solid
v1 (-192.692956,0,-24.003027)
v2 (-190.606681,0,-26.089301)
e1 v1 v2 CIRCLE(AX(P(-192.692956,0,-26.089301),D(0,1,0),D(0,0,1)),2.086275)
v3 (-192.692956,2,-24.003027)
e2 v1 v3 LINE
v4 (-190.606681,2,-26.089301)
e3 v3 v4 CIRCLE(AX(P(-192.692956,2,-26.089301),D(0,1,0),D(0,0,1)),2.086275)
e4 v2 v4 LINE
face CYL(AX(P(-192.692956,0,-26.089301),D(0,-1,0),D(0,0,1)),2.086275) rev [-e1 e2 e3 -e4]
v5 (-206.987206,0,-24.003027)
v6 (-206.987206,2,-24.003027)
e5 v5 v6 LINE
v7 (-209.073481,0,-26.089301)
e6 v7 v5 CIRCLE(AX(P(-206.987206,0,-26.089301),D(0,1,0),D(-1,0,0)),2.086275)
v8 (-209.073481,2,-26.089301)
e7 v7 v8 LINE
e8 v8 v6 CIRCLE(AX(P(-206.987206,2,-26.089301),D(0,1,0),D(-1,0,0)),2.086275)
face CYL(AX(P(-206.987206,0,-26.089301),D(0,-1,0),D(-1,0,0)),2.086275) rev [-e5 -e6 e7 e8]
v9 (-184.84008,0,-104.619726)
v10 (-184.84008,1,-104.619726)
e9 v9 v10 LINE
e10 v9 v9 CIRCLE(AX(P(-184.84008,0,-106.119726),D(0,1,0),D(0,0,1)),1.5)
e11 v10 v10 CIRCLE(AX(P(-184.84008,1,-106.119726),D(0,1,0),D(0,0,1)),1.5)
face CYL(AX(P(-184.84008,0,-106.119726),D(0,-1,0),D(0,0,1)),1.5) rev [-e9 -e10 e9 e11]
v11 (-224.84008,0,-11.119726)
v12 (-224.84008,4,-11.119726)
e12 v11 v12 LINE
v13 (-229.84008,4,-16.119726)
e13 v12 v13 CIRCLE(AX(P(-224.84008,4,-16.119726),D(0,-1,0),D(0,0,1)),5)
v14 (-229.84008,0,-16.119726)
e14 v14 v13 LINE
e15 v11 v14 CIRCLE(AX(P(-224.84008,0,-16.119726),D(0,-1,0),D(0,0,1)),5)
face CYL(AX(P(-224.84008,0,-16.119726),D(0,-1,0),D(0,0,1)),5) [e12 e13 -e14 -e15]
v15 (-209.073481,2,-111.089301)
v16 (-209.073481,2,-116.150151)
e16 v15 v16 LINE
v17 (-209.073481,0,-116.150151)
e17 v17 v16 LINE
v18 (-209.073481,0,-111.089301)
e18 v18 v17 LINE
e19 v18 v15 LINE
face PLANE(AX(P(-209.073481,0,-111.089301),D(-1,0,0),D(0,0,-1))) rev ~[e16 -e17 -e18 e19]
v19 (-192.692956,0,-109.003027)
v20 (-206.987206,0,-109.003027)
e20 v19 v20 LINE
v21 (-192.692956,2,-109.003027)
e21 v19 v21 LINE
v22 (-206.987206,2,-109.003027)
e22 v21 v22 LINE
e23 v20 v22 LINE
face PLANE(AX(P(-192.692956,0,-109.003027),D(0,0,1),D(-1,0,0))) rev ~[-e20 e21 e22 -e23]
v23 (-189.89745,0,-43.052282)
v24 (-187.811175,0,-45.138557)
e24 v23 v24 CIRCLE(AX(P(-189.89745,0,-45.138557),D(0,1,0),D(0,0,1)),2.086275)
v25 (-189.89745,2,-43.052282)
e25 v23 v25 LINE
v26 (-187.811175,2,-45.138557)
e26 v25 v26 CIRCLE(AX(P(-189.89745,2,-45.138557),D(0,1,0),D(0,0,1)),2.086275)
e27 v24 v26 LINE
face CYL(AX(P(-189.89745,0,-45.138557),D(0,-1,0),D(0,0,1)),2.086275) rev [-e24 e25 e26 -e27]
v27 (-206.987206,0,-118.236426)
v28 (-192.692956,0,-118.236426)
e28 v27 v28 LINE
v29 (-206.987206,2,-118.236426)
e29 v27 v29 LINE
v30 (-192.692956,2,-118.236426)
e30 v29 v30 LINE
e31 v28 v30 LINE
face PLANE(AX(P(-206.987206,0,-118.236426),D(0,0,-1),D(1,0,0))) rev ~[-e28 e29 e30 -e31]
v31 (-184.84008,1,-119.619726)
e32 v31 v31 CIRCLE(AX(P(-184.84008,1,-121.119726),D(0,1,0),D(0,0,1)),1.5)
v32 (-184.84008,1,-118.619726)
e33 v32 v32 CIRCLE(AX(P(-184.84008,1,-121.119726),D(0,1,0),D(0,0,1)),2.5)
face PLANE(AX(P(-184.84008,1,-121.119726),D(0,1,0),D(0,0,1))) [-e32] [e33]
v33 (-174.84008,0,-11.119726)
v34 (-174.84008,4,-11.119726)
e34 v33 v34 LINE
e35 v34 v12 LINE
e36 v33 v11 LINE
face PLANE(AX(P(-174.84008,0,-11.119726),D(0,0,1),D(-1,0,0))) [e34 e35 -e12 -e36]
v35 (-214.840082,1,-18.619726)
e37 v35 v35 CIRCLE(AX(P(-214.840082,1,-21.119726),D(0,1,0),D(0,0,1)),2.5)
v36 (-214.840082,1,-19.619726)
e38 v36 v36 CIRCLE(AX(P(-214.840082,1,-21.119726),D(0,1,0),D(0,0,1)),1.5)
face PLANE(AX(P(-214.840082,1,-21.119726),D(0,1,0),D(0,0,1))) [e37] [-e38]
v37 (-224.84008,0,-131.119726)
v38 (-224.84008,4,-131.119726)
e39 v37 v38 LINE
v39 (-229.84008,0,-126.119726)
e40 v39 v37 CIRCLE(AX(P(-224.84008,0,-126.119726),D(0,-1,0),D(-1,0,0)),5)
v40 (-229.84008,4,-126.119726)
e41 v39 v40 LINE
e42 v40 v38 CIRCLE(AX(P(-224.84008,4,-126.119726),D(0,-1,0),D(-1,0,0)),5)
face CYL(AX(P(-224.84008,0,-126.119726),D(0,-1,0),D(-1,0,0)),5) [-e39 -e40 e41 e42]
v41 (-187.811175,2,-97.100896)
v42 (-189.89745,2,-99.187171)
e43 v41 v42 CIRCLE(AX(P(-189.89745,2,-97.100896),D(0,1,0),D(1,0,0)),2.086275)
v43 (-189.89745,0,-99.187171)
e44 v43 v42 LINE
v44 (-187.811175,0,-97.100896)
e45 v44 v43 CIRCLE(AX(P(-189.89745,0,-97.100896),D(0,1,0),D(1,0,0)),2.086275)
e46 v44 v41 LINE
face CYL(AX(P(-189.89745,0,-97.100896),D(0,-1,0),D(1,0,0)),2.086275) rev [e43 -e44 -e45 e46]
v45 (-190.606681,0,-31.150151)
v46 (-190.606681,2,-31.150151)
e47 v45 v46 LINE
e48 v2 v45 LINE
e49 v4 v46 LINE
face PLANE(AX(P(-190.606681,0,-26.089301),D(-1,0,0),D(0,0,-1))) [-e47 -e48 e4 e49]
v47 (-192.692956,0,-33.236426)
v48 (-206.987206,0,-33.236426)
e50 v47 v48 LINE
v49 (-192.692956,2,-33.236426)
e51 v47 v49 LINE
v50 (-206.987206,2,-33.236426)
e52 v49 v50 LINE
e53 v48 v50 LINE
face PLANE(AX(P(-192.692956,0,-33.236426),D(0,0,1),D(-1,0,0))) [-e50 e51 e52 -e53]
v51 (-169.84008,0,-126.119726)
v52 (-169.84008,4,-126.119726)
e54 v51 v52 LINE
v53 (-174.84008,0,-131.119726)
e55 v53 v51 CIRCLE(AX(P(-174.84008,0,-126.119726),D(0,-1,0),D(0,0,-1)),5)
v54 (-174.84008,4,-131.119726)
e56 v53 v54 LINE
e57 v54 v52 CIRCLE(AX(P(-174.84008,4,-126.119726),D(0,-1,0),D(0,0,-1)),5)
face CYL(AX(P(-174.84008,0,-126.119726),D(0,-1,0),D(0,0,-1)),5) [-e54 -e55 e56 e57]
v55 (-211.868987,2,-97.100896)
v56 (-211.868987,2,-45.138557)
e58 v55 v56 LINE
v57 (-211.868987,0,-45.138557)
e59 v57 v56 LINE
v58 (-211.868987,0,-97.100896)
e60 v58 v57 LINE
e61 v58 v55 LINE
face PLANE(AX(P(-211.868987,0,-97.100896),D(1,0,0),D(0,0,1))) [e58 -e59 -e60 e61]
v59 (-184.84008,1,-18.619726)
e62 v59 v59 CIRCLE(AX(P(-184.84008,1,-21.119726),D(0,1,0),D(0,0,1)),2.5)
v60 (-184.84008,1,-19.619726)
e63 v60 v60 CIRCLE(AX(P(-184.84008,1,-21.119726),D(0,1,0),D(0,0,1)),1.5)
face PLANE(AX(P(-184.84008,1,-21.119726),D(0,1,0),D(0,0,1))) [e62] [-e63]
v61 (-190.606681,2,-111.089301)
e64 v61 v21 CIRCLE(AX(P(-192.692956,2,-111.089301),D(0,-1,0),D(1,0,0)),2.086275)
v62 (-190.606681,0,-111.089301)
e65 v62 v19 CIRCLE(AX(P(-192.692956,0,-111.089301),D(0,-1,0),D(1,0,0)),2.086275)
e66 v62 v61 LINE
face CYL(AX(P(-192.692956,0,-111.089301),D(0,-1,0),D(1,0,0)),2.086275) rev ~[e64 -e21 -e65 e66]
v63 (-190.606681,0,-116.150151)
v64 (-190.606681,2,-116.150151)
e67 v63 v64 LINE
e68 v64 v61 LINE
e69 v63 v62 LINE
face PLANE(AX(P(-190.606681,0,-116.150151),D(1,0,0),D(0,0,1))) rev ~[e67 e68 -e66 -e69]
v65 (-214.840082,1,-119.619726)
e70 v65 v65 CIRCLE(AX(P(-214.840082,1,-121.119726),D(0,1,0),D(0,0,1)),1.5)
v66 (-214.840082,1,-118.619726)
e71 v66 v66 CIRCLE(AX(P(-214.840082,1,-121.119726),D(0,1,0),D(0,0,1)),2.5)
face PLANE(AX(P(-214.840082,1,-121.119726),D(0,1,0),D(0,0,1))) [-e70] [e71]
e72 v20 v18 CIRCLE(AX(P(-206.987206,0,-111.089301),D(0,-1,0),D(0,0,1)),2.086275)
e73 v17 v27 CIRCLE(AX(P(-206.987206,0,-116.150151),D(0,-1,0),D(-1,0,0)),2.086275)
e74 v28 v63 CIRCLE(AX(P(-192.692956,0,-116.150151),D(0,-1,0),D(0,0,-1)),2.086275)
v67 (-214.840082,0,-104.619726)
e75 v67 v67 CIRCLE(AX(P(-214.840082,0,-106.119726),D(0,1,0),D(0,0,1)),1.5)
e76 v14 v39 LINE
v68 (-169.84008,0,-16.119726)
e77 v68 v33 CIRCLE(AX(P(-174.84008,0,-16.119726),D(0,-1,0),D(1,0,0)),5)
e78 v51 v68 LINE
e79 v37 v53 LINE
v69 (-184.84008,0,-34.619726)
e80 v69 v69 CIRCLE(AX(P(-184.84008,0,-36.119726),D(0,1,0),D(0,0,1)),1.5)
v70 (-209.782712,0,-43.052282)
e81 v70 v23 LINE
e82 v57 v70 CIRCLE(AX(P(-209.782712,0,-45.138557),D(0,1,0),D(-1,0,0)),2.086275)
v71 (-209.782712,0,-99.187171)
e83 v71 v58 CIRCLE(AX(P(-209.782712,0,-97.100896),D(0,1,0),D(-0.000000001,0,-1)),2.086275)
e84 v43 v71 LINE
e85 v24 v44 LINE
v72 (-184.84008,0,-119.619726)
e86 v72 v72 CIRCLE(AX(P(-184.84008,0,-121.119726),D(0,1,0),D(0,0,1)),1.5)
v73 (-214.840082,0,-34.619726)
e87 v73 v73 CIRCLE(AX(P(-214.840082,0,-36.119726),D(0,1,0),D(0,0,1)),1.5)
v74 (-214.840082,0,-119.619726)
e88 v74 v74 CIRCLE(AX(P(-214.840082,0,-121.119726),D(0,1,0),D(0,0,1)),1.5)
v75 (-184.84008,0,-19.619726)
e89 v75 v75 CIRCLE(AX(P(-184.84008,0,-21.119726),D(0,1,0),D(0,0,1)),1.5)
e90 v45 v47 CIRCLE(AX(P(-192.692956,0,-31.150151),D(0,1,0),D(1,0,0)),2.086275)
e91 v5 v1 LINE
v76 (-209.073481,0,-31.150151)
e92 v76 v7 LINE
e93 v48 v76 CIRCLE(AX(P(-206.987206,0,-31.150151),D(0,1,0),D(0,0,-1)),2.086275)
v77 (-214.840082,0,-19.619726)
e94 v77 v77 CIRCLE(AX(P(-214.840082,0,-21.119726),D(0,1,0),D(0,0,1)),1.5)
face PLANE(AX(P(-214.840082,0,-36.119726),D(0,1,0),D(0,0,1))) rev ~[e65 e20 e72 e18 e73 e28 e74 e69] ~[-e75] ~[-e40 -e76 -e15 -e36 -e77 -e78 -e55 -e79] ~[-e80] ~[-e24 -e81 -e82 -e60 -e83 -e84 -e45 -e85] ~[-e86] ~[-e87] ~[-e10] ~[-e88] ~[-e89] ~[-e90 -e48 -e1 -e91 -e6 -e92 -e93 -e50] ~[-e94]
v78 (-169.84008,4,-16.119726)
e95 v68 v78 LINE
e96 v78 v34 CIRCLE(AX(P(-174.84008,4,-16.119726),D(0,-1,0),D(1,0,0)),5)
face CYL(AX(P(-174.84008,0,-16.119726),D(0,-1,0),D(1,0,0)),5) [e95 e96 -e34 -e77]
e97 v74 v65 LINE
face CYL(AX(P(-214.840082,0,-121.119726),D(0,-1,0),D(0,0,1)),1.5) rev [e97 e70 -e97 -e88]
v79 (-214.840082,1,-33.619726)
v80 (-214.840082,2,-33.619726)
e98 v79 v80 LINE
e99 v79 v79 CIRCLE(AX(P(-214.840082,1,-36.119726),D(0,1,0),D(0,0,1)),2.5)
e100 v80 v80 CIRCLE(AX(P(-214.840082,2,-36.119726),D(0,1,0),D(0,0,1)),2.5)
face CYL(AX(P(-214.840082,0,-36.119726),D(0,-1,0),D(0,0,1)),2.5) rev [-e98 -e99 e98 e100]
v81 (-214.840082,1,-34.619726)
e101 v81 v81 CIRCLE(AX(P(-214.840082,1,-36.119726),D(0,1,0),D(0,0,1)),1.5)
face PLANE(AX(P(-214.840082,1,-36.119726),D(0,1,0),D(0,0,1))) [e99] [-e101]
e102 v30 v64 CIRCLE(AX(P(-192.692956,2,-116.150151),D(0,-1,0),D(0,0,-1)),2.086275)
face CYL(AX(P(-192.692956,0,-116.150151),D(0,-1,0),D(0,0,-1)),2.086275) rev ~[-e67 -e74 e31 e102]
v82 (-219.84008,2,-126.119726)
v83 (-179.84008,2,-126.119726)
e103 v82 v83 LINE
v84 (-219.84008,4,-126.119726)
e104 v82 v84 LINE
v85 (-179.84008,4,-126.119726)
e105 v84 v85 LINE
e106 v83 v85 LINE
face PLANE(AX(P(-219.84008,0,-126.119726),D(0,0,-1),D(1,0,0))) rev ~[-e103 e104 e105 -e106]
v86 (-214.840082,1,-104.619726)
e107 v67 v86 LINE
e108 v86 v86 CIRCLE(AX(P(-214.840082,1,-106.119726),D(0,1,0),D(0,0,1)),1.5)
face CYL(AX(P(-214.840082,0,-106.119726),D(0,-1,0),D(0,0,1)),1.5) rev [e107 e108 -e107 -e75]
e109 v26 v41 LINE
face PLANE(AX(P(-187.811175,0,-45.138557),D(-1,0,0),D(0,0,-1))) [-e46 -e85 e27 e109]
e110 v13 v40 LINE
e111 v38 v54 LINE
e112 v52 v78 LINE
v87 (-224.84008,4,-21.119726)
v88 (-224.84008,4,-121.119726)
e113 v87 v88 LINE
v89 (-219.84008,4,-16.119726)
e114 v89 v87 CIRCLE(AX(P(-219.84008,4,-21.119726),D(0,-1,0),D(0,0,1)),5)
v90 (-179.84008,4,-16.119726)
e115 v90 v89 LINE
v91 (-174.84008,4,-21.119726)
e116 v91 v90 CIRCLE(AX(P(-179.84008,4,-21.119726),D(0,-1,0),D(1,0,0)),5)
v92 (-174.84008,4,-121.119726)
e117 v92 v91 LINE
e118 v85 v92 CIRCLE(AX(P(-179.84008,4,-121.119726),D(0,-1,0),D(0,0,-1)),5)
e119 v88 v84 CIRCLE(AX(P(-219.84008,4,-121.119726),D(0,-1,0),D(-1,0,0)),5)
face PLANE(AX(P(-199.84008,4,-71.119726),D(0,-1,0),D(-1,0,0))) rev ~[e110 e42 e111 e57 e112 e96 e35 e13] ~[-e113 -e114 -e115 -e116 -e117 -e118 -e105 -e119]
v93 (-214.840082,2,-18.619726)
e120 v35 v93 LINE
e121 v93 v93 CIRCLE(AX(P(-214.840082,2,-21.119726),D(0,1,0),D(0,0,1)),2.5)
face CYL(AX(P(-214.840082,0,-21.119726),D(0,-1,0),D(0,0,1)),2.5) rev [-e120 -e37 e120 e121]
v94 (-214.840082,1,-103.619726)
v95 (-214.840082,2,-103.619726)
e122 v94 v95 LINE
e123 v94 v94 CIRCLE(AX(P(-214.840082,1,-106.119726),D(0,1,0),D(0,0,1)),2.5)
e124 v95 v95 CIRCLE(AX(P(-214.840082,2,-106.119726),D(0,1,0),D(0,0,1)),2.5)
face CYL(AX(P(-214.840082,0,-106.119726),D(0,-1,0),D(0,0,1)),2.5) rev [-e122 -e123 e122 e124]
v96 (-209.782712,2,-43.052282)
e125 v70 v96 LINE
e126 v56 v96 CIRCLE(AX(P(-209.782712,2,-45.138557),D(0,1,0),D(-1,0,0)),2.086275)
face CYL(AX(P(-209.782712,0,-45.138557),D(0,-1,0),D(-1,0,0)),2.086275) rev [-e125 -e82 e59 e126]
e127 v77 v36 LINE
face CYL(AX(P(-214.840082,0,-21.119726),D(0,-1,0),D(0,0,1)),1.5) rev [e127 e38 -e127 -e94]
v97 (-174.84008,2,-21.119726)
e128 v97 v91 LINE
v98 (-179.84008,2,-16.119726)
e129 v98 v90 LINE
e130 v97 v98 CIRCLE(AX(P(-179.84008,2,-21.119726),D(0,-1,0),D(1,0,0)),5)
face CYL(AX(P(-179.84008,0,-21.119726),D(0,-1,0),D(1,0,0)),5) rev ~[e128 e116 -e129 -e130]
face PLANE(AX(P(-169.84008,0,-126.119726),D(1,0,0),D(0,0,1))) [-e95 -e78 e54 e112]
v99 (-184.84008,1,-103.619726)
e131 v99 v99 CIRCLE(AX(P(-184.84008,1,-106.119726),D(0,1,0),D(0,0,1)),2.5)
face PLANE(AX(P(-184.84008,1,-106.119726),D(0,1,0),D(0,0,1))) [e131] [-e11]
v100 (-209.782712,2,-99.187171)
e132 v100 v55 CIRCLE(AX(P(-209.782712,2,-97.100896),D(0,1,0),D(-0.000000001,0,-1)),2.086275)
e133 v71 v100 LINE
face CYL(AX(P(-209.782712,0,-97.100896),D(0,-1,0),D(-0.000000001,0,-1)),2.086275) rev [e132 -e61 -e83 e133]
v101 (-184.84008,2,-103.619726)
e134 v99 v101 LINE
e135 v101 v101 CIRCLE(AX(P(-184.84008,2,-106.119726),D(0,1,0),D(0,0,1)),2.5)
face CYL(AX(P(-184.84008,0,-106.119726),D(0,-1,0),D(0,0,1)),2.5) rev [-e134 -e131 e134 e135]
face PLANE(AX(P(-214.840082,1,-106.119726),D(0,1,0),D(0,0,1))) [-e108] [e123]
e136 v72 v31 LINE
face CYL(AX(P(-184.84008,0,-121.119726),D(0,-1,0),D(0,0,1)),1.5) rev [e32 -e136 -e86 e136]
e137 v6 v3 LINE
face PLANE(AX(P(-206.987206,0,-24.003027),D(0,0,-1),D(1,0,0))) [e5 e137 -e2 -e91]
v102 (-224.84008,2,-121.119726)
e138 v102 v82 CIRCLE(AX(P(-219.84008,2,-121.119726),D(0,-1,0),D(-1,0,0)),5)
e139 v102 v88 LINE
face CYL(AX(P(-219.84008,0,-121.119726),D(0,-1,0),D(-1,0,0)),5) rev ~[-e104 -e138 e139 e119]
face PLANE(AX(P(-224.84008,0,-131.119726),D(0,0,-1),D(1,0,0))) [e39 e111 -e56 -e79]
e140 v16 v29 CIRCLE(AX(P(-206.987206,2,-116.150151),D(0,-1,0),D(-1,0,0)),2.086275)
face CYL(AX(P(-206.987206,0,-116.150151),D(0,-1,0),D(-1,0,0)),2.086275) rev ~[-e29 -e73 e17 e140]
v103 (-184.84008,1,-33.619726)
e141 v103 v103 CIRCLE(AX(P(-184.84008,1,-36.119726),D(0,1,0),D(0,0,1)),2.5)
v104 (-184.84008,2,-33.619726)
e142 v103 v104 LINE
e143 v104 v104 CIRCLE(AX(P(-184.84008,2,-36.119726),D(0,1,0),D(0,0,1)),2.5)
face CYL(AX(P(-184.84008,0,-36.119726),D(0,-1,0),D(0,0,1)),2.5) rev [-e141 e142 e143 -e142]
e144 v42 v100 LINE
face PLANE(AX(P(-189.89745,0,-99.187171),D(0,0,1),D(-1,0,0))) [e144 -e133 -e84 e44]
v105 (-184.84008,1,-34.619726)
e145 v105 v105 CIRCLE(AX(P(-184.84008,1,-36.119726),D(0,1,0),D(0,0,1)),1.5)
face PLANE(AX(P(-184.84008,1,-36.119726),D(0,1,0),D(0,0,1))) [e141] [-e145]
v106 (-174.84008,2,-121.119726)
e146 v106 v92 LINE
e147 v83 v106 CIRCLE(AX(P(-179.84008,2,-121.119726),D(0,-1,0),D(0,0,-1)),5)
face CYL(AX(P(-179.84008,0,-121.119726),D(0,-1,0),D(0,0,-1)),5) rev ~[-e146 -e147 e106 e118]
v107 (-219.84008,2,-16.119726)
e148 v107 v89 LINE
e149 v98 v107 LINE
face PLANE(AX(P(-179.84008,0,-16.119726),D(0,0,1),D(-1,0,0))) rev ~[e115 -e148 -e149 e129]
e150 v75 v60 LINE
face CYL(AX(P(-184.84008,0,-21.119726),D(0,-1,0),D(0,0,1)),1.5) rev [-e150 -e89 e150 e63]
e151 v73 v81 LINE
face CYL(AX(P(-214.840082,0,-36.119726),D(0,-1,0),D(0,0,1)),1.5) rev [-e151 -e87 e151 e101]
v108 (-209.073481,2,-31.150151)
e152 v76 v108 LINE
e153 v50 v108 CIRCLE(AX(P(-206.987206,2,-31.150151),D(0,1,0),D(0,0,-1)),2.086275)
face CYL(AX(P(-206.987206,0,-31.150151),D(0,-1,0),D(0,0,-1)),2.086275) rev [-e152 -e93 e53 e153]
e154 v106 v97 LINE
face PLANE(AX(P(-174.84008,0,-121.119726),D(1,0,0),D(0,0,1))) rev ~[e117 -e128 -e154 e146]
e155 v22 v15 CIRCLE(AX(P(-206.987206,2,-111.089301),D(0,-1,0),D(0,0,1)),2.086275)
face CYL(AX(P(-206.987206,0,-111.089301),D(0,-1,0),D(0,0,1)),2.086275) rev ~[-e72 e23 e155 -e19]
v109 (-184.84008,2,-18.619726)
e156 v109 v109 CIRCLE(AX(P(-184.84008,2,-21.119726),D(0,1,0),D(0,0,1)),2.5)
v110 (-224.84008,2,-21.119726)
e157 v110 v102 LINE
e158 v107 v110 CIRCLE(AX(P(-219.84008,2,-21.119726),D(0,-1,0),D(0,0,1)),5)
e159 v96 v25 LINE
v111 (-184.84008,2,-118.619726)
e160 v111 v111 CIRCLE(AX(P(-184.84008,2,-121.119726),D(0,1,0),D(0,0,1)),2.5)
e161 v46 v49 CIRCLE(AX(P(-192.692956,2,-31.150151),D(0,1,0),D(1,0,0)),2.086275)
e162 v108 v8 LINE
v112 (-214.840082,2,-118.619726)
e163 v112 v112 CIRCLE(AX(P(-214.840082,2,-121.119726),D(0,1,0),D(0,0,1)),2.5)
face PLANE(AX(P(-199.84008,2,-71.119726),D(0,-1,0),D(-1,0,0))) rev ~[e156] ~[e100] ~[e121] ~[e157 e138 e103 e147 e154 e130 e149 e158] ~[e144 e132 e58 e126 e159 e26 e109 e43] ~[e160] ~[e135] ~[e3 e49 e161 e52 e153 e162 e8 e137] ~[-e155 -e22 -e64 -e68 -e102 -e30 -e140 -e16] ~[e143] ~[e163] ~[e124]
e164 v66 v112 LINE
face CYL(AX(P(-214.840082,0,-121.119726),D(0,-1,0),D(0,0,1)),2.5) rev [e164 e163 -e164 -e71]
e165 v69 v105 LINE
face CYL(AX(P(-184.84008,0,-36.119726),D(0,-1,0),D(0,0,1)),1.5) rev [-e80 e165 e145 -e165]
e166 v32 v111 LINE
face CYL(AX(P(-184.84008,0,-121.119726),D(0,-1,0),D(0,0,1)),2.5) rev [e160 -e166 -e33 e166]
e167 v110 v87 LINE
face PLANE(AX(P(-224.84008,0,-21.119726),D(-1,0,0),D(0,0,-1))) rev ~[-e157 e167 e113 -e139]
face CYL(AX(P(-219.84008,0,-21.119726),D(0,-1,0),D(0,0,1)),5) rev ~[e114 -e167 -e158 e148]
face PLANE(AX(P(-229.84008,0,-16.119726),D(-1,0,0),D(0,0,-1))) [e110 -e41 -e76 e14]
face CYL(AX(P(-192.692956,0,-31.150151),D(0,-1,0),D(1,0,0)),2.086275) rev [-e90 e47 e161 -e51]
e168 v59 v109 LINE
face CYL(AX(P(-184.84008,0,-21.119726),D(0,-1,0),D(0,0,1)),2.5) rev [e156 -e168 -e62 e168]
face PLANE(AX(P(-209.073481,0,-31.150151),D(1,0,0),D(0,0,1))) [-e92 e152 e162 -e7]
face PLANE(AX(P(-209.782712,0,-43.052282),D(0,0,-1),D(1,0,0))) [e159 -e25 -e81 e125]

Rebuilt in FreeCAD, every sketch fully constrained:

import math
import FreeCAD as App
import Part
import Sketcher

V = App.Vector
Q = App.Units.Quantity

doc = App.newDocument("Part")
params = doc.addObject("Spreadsheet::Sheet", "Params")
for row, (alias, value) in enumerate([
    ("sketch1_radius", "5 mm"),
    ("sketch1_width", "50 mm"),
    ("sketch1_height", "110 mm"),
    ("pad1_length", "4 mm"),
    ("sketch2_diameter", "5 mm"),
    ("sketch2_radius", "5 mm"),
    ("sketch2_width", "40 mm"),
    ("sketch2_height", "100 mm"),
    ("pad2_length", "2 mm"),
    ("sketch3_diameter", "5 mm"),
    ("sketch3_diameter2", "3 mm"),
    ("pad3_length", "1 mm"),
], start=1):
    params.set(f"A{row}", alias)
    params.set(f"B{row}", "=" + value)
    params.setAlias(f"B{row}", alias)

body = doc.addObject("PartDesign::Body", "Body")

# Sketch on XZ plane
sketch1 = doc.addObject("Sketcher::SketchObject", "Sketch")
body.addObject(sketch1)
sketch1.AttachmentSupport = (doc.XZ_Plane, [""])
sketch1.MapMode = "FlatFace"
sketch1.addGeometry([
    Part.ArcOfCircle(Part.Circle(V(-175, -16, 0), V(0, 0, 1), 5), math.radians(0), math.radians(90)),  # 0
    Part.LineSegment(V(-170, -16, 0), V(-170, -126, 0)),  # 1
    Part.ArcOfCircle(Part.Circle(V(-175, -126, 0), V(0, 0, 1), 5), math.radians(-90), math.radians(0)),  # 2
    Part.LineSegment(V(-175, -131, 0), V(-225, -131, 0)),  # 3
    Part.ArcOfCircle(Part.Circle(V(-225, -126, 0), V(0, 0, 1), 5), math.radians(180), math.radians(270)),  # 4
    Part.LineSegment(V(-230, -126, 0), V(-230, -16, 0)),  # 5
    Part.ArcOfCircle(Part.Circle(V(-225, -16, 0), V(0, 0, 1), 5), math.radians(90), math.radians(180)),  # 6
    Part.LineSegment(V(-225, -11, 0), V(-175, -11, 0)),  # 7
    Part.LineSegment(V(-225, -21, 0), V(-225, -121, 0)),  # 8
    Part.ArcOfCircle(Part.Circle(V(-220, -121, 0), V(0, 0, 1), 5), math.radians(180), math.radians(270)),  # 9
    Part.LineSegment(V(-220, -126, 0), V(-180, -126, 0)),  # 10
    Part.ArcOfCircle(Part.Circle(V(-180, -121, 0), V(0, 0, 1), 5), math.radians(-90), math.radians(0)),  # 11
    Part.LineSegment(V(-175, -121, 0), V(-175, -21, 0)),  # 12
    Part.ArcOfCircle(Part.Circle(V(-180, -21, 0), V(0, 0, 1), 5), math.radians(0), math.radians(90)),  # 13
    Part.LineSegment(V(-180, -16, 0), V(-220, -16, 0)),  # 14
    Part.ArcOfCircle(Part.Circle(V(-220, -21, 0), V(0, 0, 1), 5), math.radians(90), math.radians(180)),  # 15
], False)
sketch1.addConstraint([
    Sketcher.Constraint("Tangent", 0, 1, 1, 1),
    Sketcher.Constraint("Tangent", 1, 2, 2, 2),
    Sketcher.Constraint("Tangent", 2, 1, 3, 1),
    Sketcher.Constraint("Tangent", 3, 2, 4, 2),
    Sketcher.Constraint("Tangent", 4, 1, 5, 1),
    Sketcher.Constraint("Tangent", 5, 2, 6, 2),
    Sketcher.Constraint("Tangent", 6, 1, 7, 1),
    Sketcher.Constraint("Tangent", 7, 2, 0, 2),
    Sketcher.Constraint("Tangent", 8, 2, 9, 1),
    Sketcher.Constraint("Tangent", 9, 2, 10, 1),
    Sketcher.Constraint("Tangent", 10, 2, 11, 1),
    Sketcher.Constraint("Tangent", 11, 2, 12, 1),
    Sketcher.Constraint("Tangent", 12, 2, 13, 1),
    Sketcher.Constraint("Tangent", 13, 2, 14, 1),
    Sketcher.Constraint("Tangent", 14, 2, 15, 1),
    Sketcher.Constraint("Tangent", 15, 2, 8, 1),
    Sketcher.Constraint("Vertical", 1),
    Sketcher.Constraint("Horizontal", 3),
    Sketcher.Constraint("Vertical", 5),
    Sketcher.Constraint("Horizontal", 7),
    Sketcher.Constraint("Vertical", 8),
    Sketcher.Constraint("Horizontal", 10),
    Sketcher.Constraint("Vertical", 12),
    Sketcher.Constraint("Horizontal", 14),
    Sketcher.Constraint("Equal", 0, 2),
    Sketcher.Constraint("Equal", 2, 4),
    Sketcher.Constraint("Equal", 4, 6),
    Sketcher.Constraint("Equal", 6, 9),
    Sketcher.Constraint("Equal", 9, 11),
    Sketcher.Constraint("Equal", 11, 13),
    Sketcher.Constraint("Equal", 13, 15),
    Sketcher.Constraint("Horizontal", 4, 1, 9, 2),
    Sketcher.Constraint("Horizontal", 5, 2, 13, 2),
    Sketcher.Constraint("Vertical", 6, 1, 8, 2),
    Sketcher.Constraint("Vertical", 7, 2, 11, 2),
    Sketcher.Constraint("Radius", 0, Q("5 mm")),
    Sketcher.Constraint("DistanceX", 3, 2, 3, 1, Q("50 mm")),
    Sketcher.Constraint("DistanceY", 1, 2, 1, 1, Q("110 mm")),
    Sketcher.Constraint("DistanceX", 0, 3, -1, 1, Q("174.84008 mm")),
    Sketcher.Constraint("DistanceY", 0, 3, -1, 1, Q("16.119726 mm")),
])
sketch1.setExpression("Constraints[35]", "Params.sketch1_radius")
sketch1.setExpression("Constraints[36]", "Params.sketch1_width")
sketch1.setExpression("Constraints[37]", "Params.sketch1_height")
pad1 = doc.addObject("PartDesign::Pad", "Pad")
body.addObject(pad1)
pad1.Profile = sketch1
pad1.setExpression("Length", "Params.pad1_length")
pad1.Reversed = True

# Sketch on XZ plane
sketch2 = doc.addObject("Sketcher::SketchObject", "Sketch001")
body.addObject(sketch2)
sketch2.AttachmentSupport = (doc.XZ_Plane, [""])
sketch2.MapMode = "FlatFace"
sketch2.addGeometry([
    Part.ArcOfCircle(Part.Circle(V(-219.8, -121.1, 0), V(0, 0, 1), 5), math.radians(180), math.radians(270)),  # 0
    Part.LineSegment(V(-224.8, -121.1, 0), V(-224.8, -21.1, 0)),  # 1
    Part.ArcOfCircle(Part.Circle(V(-219.8, -21.1, 0), V(0, 0, 1), 5), math.radians(90), math.radians(180)),  # 2
    Part.LineSegment(V(-219.8, -16.1, 0), V(-179.8, -16.1, 0)),  # 3
    Part.ArcOfCircle(Part.Circle(V(-179.8, -21.1, 0), V(0, 0, 1), 5), math.radians(0), math.radians(90)),  # 4
    Part.LineSegment(V(-174.8, -21.1, 0), V(-174.8, -121.1, 0)),  # 5
    Part.ArcOfCircle(Part.Circle(V(-179.8, -121.1, 0), V(0, 0, 1), 5), math.radians(-90), math.radians(0)),  # 6
    Part.LineSegment(V(-179.8, -126.1, 0), V(-219.8, -126.1, 0)),  # 7
    Part.Circle(V(-184.8, -21.1, 0), V(0, 0, 1), 2.5),  # 8
    Part.Circle(V(-184.8, -36.1, 0), V(0, 0, 1), 2.5),  # 9
    Part.ArcOfCircle(Part.Circle(V(-207, -31.2, 0), V(0, 0, 1), 2.1), math.radians(180), math.radians(270)),  # 10
    Part.LineSegment(V(-207, -33.2, 0), V(-192.7, -33.2, 0)),  # 11
    Part.ArcOfCircle(Part.Circle(V(-192.7, -31.2, 0), V(0, 0, 1), 2.1), math.radians(-90), math.radians(0)),  # 12
    Part.LineSegment(V(-190.6, -31.2, 0), V(-190.6, -26.1, 0)),  # 13
    Part.ArcOfCircle(Part.Circle(V(-192.7, -26.1, 0), V(0, 0, 1), 2.1), math.radians(0), math.radians(90)),  # 14
    Part.LineSegment(V(-192.7, -24, 0), V(-207, -24, 0)),  # 15
    Part.ArcOfCircle(Part.Circle(V(-207, -26.1, 0), V(0, 0, 1), 2.1), math.radians(90), math.radians(180)),  # 16
    Part.LineSegment(V(-209.1, -26.1, 0), V(-209.1, -31.2, 0)),  # 17
    Part.Circle(V(-214.8, -21.1, 0), V(0, 0, 1), 2.5),  # 18
    Part.Circle(V(-214.8, -36.1, 0), V(0, 0, 1), 2.5),  # 19
    Part.Circle(V(-184.8, -106.1, 0), V(0, 0, 1), 2.5),  # 20
    Part.Circle(V(-184.8, -121.1, 0), V(0, 0, 1), 2.5),  # 21
    Part.LineSegment(V(-209.8, -99.2, 0), V(-189.9, -99.2, 0)),  # 22
    Part.ArcOfCircle(Part.Circle(V(-189.9, -97.1, 0), V(0, 0, 1), 2.1), math.radians(-90), math.radians(0)),  # 23
    Part.LineSegment(V(-187.8, -97.1, 0), V(-187.8, -45.1, 0)),  # 24
    Part.ArcOfCircle(Part.Circle(V(-189.9, -45.1, 0), V(0, 0, 1), 2.1), math.radians(0), math.radians(90)),  # 25
    Part.LineSegment(V(-189.9, -43.1, 0), V(-209.8, -43.1, 0)),  # 26
    Part.ArcOfCircle(Part.Circle(V(-209.8, -45.1, 0), V(0, 0, 1), 2.1), math.radians(90), math.radians(180)),  # 27
    Part.LineSegment(V(-211.9, -45.1, 0), V(-211.9, -97.1, 0)),  # 28
    Part.ArcOfCircle(Part.Circle(V(-209.8, -97.1, 0), V(0, 0, 1), 2.1), math.radians(-180), math.radians(-90)),  # 29
    Part.LineSegment(V(-209.1, -111.1, 0), V(-209.1, -116.2, 0)),  # 30
    Part.ArcOfCircle(Part.Circle(V(-207, -116.2, 0), V(0, 0, 1), 2.1), math.radians(180), math.radians(270)),  # 31
    Part.LineSegment(V(-207, -118.2, 0), V(-192.7, -118.2, 0)),  # 32
    Part.ArcOfCircle(Part.Circle(V(-192.7, -116.2, 0), V(0, 0, 1), 2.1), math.radians(-90), math.radians(0)),  # 33
    Part.LineSegment(V(-190.6, -116.2, 0), V(-190.6, -111.1, 0)),  # 34
    Part.ArcOfCircle(Part.Circle(V(-192.7, -111.1, 0), V(0, 0, 1), 2.1), math.radians(0), math.radians(90)),  # 35
    Part.LineSegment(V(-192.7, -109, 0), V(-207, -109, 0)),  # 36
    Part.ArcOfCircle(Part.Circle(V(-207, -111.1, 0), V(0, 0, 1), 2.1), math.radians(90), math.radians(180)),  # 37
    Part.Circle(V(-214.8, -106.1, 0), V(0, 0, 1), 2.5),  # 38
    Part.Circle(V(-214.8, -121.1, 0), V(0, 0, 1), 2.5),  # 39
], False)
sketch2.addConstraint([
    Sketcher.Constraint("Tangent", 0, 1, 1, 1),
    Sketcher.Constraint("Tangent", 1, 2, 2, 2),
    Sketcher.Constraint("Tangent", 2, 1, 3, 1),
    Sketcher.Constraint("Tangent", 3, 2, 4, 2),
    Sketcher.Constraint("Tangent", 4, 1, 5, 1),
    Sketcher.Constraint("Tangent", 5, 2, 6, 2),
    Sketcher.Constraint("Tangent", 6, 1, 7, 1),
    Sketcher.Constraint("Tangent", 7, 2, 0, 2),
    Sketcher.Constraint("Tangent", 10, 2, 11, 1),
    Sketcher.Constraint("Tangent", 11, 2, 12, 1),
    Sketcher.Constraint("Tangent", 12, 2, 13, 1),
    Sketcher.Constraint("Tangent", 13, 2, 14, 1),
    Sketcher.Constraint("Tangent", 14, 2, 15, 1),
    Sketcher.Constraint("Tangent", 15, 2, 16, 1),
    Sketcher.Constraint("Tangent", 16, 2, 17, 1),
    Sketcher.Constraint("Tangent", 17, 2, 10, 1),
    Sketcher.Constraint("Tangent", 22, 2, 23, 1),
    Sketcher.Constraint("Tangent", 23, 2, 24, 1),
    Sketcher.Constraint("Tangent", 24, 2, 25, 1),
    Sketcher.Constraint("Tangent", 25, 2, 26, 1),
    Sketcher.Constraint("Tangent", 26, 2, 27, 1),
    Sketcher.Constraint("Tangent", 27, 2, 28, 1),
    Sketcher.Constraint("Tangent", 28, 2, 29, 1),
    Sketcher.Constraint("Tangent", 29, 2, 22, 1),
    Sketcher.Constraint("Tangent", 30, 2, 31, 1),
    Sketcher.Constraint("Tangent", 31, 2, 32, 1),
    Sketcher.Constraint("Tangent", 32, 2, 33, 1),
    Sketcher.Constraint("Tangent", 33, 2, 34, 1),
    Sketcher.Constraint("Tangent", 34, 2, 35, 1),
    Sketcher.Constraint("Tangent", 35, 2, 36, 1),
    Sketcher.Constraint("Tangent", 36, 2, 37, 1),
    Sketcher.Constraint("Tangent", 37, 2, 30, 1),
    Sketcher.Constraint("Vertical", 1),
    Sketcher.Constraint("Horizontal", 3),
    Sketcher.Constraint("Vertical", 5),
    Sketcher.Constraint("Horizontal", 7),
    Sketcher.Constraint("Horizontal", 11),
    Sketcher.Constraint("Vertical", 13),
    Sketcher.Constraint("Horizontal", 15),
    Sketcher.Constraint("Vertical", 17),
    Sketcher.Constraint("Horizontal", 22),
    Sketcher.Constraint("Vertical", 24),
    Sketcher.Constraint("Horizontal", 26),
    Sketcher.Constraint("Vertical", 28),
    Sketcher.Constraint("Vertical", 30),
    Sketcher.Constraint("Horizontal", 32),
    Sketcher.Constraint("Vertical", 34),
    Sketcher.Constraint("Horizontal", 36),
    Sketcher.Constraint("Equal", 0, 2),
    Sketcher.Constraint("Equal", 2, 4),
    Sketcher.Constraint("Equal", 4, 6),
    Sketcher.Constraint("Equal", 8, 9),
    Sketcher.Constraint("Equal", 10, 12),
    Sketcher.Constraint("Equal", 12, 14),
    Sketcher.Constraint("Equal", 14, 16),
    Sketcher.Constraint("Equal", 9, 18),
    Sketcher.Constraint("Equal", 18, 19),
    Sketcher.Constraint("Equal", 19, 20),
    Sketcher.Constraint("Equal", 20, 21),
    Sketcher.Constraint("Equal", 16, 23),
    Sketcher.Constraint("Equal", 23, 25),
    Sketcher.Constraint("Equal", 25, 27),
    Sketcher.Constraint("Equal", 27, 29),
    Sketcher.Constraint("Equal", 29, 31),
    Sketcher.Constraint("Equal", 31, 33),
    Sketcher.Constraint("Equal", 33, 35),
    Sketcher.Constraint("Equal", 35, 37),
    Sketcher.Constraint("Equal", 21, 38),
    Sketcher.Constraint("Equal", 38, 39),
    Sketcher.Constraint("Horizontal", 4, 3, 8, 3),
    Sketcher.Constraint("Horizontal", 8, 3, 18, 3),
    Sketcher.Constraint("Horizontal", 9, 3, 19, 3),
    Sketcher.Constraint("Horizontal", 6, 3, 21, 3),
    Sketcher.Constraint("Horizontal", 20, 3, 38, 3),
    Sketcher.Constraint("Horizontal", 21, 3, 39, 3),
    Sketcher.Constraint("Vertical", 8, 3, 9, 3),
    Sketcher.Constraint("Vertical", 18, 3, 19, 3),
    Sketcher.Constraint("Vertical", 9, 3, 20, 3),
    Sketcher.Constraint("Vertical", 20, 3, 21, 3),
    Sketcher.Constraint("Vertical", 16, 3, 31, 3),
    Sketcher.Constraint("Vertical", 14, 3, 33, 3),
    Sketcher.Constraint("Vertical", 19, 3, 38, 3),
    Sketcher.Constraint("Vertical", 38, 3, 39, 3),
    Sketcher.Constraint("Equal", 17, 30),
    Sketcher.Constraint("Diameter", 8, Q("5 mm")),
    Sketcher.Constraint("Radius", 0, Q("5 mm")),
    Sketcher.Constraint("DistanceX", 3, 1, 3, 2, Q("40 mm")),
    Sketcher.Constraint("DistanceY", 1, 1, 1, 2, Q("100 mm")),
    Sketcher.Constraint("DistanceX", 8, 3, 4, 3, Q("5 mm")),
    Sketcher.Constraint("DistanceY", 9, 3, 8, 3, Q("15 mm")),
    Sketcher.Constraint("DistanceY", 6, 3, 20, 3, Q("15 mm")),
    Sketcher.Constraint("Radius", 10, Q("2.086275 mm")),
    Sketcher.Constraint("DistanceX", 11, 1, 11, 2, Q("14.294251 mm")),
    Sketcher.Constraint("DistanceX", 22, 1, 22, 2, Q("19.885262 mm")),
    Sketcher.Constraint("DistanceY", 13, 1, 13, 2, Q("5.06085 mm")),
    Sketcher.Constraint("DistanceY", 24, 1, 24, 2, Q("51.962339 mm")),
    Sketcher.Constraint("DistanceY", 14, 3, -1, 1, Q("26.089301 mm")),
    Sketcher.Constraint("DistanceY", 35, 3, -1, 1, Q("111.089301 mm")),
    Sketcher.Constraint("DistanceY", 19, 3, 10, 2, Q("2.8833 mm")),
    Sketcher.Constraint("DistanceX", 12, 2, 9, 3, Q("5.766601 mm")),
    Sketcher.Constraint("DistanceX", 18, 3, 16, 2, Q("5.766601 mm")),
    Sketcher.Constraint("DistanceX", 0, 3, -1, 1, Q("219.84008 mm")),
    Sketcher.Constraint("DistanceX", 23, 3, -1, 1, Q("189.89745 mm")),
    Sketcher.Constraint("DistanceY", 22, 2, -1, 1, Q("99.187171 mm")),
])
sketch2.setExpression("Constraints[84]", "Params.sketch2_diameter")
sketch2.setExpression("Constraints[85]", "Params.sketch2_radius")
sketch2.setExpression("Constraints[86]", "Params.sketch2_width")
sketch2.setExpression("Constraints[87]", "Params.sketch2_height")
pad2 = doc.addObject("PartDesign::Pad", "Pad001")
body.addObject(pad2)
pad2.Profile = sketch2
pad2.setExpression("Length", "Params.pad2_length")
pad2.Reversed = True

# Sketch on XZ plane
sketch3 = doc.addObject("Sketcher::SketchObject", "Sketch002")
body.addObject(sketch3)
sketch3.AttachmentSupport = (doc.XZ_Plane, [""])
sketch3.MapMode = "FlatFace"
sketch3.addGeometry([
    Part.Circle(V(-214.8, -36.1, 0), V(0, 0, 1), 2.5),  # 0
    Part.Circle(V(-214.8, -36.1, 0), V(0, 0, 1), 1.5),  # 1
    Part.Circle(V(-214.8, -21.1, 0), V(0, 0, 1), 2.5),  # 2
    Part.Circle(V(-214.8, -21.1, 0), V(0, 0, 1), 1.5),  # 3
    Part.Circle(V(-184.8, -21.1, 0), V(0, 0, 1), 2.5),  # 4
    Part.Circle(V(-184.8, -21.1, 0), V(0, 0, 1), 1.5),  # 5
    Part.Circle(V(-184.8, -36.1, 0), V(0, 0, 1), 2.5),  # 6
    Part.Circle(V(-184.8, -36.1, 0), V(0, 0, 1), 1.5),  # 7
    Part.Circle(V(-214.8, -106.1, 0), V(0, 0, 1), 2.5),  # 8
    Part.Circle(V(-214.8, -106.1, 0), V(0, 0, 1), 1.5),  # 9
    Part.Circle(V(-214.8, -121.1, 0), V(0, 0, 1), 2.5),  # 10
    Part.Circle(V(-214.8, -121.1, 0), V(0, 0, 1), 1.5),  # 11
    Part.Circle(V(-184.8, -121.1, 0), V(0, 0, 1), 2.5),  # 12
    Part.Circle(V(-184.8, -121.1, 0), V(0, 0, 1), 1.5),  # 13
    Part.Circle(V(-184.8, -106.1, 0), V(0, 0, 1), 2.5),  # 14
    Part.Circle(V(-184.8, -106.1, 0), V(0, 0, 1), 1.5),  # 15
], False)
sketch3.addConstraint([
    Sketcher.Constraint("Coincident", 1, 3, 0, 3),
    Sketcher.Constraint("Coincident", 3, 3, 2, 3),
    Sketcher.Constraint("Coincident", 5, 3, 4, 3),
    Sketcher.Constraint("Coincident", 7, 3, 6, 3),
    Sketcher.Constraint("Coincident", 9, 3, 8, 3),
    Sketcher.Constraint("Coincident", 11, 3, 10, 3),
    Sketcher.Constraint("Coincident", 13, 3, 12, 3),
    Sketcher.Constraint("Coincident", 15, 3, 14, 3),
    Sketcher.Constraint("Equal", 0, 2),
    Sketcher.Constraint("Equal", 1, 3),
    Sketcher.Constraint("Equal", 2, 4),
    Sketcher.Constraint("Equal", 3, 5),
    Sketcher.Constraint("Equal", 4, 6),
    Sketcher.Constraint("Equal", 5, 7),
    Sketcher.Constraint("Equal", 6, 8),
    Sketcher.Constraint("Equal", 7, 9),
    Sketcher.Constraint("Equal", 8, 10),
    Sketcher.Constraint("Equal", 9, 11),
    Sketcher.Constraint("Equal", 10, 12),
    Sketcher.Constraint("Equal", 11, 13),
    Sketcher.Constraint("Equal", 12, 14),
    Sketcher.Constraint("Equal", 13, 15),
    Sketcher.Constraint("Horizontal", 3, 3, 4, 3),
    Sketcher.Constraint("Horizontal", 1, 3, 6, 3),
    Sketcher.Constraint("Horizontal", 11, 3, 12, 3),
    Sketcher.Constraint("Horizontal", 9, 3, 14, 3),
    Sketcher.Constraint("Vertical", 1, 3, 2, 3),
    Sketcher.Constraint("Vertical", 5, 3, 6, 3),
    Sketcher.Constraint("Vertical", 3, 3, 8, 3),
    Sketcher.Constraint("Vertical", 9, 3, 10, 3),
    Sketcher.Constraint("Vertical", 7, 3, 12, 3),
    Sketcher.Constraint("Vertical", 13, 3, 14, 3),
    Sketcher.Constraint("Diameter", 0, Q("5 mm")),
    Sketcher.Constraint("Diameter", 1, Q("3 mm")),
    Sketcher.Constraint("DistanceY", 0, 3, 2, 3, Q("15 mm")),
    Sketcher.Constraint("DistanceY", 8, 3, 0, 3, Q("70 mm")),
    Sketcher.Constraint("DistanceY", 10, 3, 8, 3, Q("15 mm")),
    Sketcher.Constraint("DistanceX", 4, 3, -1, 1, Q("184.84008 mm")),
    Sketcher.Constraint("DistanceX", 0, 3, -1, 1, Q("214.840082 mm")),
    Sketcher.Constraint("DistanceY", 0, 3, -1, 1, Q("36.119726 mm")),
])
sketch3.setExpression("Constraints[32]", "Params.sketch3_diameter")
sketch3.setExpression("Constraints[33]", "Params.sketch3_diameter2")
pad3 = doc.addObject("PartDesign::Pad", "Pad002")
body.addObject(pad3)
pad3.Profile = sketch3
pad3.setExpression("Length", "Params.pad3_length")
pad3.Reversed = True

doc.recompute()
